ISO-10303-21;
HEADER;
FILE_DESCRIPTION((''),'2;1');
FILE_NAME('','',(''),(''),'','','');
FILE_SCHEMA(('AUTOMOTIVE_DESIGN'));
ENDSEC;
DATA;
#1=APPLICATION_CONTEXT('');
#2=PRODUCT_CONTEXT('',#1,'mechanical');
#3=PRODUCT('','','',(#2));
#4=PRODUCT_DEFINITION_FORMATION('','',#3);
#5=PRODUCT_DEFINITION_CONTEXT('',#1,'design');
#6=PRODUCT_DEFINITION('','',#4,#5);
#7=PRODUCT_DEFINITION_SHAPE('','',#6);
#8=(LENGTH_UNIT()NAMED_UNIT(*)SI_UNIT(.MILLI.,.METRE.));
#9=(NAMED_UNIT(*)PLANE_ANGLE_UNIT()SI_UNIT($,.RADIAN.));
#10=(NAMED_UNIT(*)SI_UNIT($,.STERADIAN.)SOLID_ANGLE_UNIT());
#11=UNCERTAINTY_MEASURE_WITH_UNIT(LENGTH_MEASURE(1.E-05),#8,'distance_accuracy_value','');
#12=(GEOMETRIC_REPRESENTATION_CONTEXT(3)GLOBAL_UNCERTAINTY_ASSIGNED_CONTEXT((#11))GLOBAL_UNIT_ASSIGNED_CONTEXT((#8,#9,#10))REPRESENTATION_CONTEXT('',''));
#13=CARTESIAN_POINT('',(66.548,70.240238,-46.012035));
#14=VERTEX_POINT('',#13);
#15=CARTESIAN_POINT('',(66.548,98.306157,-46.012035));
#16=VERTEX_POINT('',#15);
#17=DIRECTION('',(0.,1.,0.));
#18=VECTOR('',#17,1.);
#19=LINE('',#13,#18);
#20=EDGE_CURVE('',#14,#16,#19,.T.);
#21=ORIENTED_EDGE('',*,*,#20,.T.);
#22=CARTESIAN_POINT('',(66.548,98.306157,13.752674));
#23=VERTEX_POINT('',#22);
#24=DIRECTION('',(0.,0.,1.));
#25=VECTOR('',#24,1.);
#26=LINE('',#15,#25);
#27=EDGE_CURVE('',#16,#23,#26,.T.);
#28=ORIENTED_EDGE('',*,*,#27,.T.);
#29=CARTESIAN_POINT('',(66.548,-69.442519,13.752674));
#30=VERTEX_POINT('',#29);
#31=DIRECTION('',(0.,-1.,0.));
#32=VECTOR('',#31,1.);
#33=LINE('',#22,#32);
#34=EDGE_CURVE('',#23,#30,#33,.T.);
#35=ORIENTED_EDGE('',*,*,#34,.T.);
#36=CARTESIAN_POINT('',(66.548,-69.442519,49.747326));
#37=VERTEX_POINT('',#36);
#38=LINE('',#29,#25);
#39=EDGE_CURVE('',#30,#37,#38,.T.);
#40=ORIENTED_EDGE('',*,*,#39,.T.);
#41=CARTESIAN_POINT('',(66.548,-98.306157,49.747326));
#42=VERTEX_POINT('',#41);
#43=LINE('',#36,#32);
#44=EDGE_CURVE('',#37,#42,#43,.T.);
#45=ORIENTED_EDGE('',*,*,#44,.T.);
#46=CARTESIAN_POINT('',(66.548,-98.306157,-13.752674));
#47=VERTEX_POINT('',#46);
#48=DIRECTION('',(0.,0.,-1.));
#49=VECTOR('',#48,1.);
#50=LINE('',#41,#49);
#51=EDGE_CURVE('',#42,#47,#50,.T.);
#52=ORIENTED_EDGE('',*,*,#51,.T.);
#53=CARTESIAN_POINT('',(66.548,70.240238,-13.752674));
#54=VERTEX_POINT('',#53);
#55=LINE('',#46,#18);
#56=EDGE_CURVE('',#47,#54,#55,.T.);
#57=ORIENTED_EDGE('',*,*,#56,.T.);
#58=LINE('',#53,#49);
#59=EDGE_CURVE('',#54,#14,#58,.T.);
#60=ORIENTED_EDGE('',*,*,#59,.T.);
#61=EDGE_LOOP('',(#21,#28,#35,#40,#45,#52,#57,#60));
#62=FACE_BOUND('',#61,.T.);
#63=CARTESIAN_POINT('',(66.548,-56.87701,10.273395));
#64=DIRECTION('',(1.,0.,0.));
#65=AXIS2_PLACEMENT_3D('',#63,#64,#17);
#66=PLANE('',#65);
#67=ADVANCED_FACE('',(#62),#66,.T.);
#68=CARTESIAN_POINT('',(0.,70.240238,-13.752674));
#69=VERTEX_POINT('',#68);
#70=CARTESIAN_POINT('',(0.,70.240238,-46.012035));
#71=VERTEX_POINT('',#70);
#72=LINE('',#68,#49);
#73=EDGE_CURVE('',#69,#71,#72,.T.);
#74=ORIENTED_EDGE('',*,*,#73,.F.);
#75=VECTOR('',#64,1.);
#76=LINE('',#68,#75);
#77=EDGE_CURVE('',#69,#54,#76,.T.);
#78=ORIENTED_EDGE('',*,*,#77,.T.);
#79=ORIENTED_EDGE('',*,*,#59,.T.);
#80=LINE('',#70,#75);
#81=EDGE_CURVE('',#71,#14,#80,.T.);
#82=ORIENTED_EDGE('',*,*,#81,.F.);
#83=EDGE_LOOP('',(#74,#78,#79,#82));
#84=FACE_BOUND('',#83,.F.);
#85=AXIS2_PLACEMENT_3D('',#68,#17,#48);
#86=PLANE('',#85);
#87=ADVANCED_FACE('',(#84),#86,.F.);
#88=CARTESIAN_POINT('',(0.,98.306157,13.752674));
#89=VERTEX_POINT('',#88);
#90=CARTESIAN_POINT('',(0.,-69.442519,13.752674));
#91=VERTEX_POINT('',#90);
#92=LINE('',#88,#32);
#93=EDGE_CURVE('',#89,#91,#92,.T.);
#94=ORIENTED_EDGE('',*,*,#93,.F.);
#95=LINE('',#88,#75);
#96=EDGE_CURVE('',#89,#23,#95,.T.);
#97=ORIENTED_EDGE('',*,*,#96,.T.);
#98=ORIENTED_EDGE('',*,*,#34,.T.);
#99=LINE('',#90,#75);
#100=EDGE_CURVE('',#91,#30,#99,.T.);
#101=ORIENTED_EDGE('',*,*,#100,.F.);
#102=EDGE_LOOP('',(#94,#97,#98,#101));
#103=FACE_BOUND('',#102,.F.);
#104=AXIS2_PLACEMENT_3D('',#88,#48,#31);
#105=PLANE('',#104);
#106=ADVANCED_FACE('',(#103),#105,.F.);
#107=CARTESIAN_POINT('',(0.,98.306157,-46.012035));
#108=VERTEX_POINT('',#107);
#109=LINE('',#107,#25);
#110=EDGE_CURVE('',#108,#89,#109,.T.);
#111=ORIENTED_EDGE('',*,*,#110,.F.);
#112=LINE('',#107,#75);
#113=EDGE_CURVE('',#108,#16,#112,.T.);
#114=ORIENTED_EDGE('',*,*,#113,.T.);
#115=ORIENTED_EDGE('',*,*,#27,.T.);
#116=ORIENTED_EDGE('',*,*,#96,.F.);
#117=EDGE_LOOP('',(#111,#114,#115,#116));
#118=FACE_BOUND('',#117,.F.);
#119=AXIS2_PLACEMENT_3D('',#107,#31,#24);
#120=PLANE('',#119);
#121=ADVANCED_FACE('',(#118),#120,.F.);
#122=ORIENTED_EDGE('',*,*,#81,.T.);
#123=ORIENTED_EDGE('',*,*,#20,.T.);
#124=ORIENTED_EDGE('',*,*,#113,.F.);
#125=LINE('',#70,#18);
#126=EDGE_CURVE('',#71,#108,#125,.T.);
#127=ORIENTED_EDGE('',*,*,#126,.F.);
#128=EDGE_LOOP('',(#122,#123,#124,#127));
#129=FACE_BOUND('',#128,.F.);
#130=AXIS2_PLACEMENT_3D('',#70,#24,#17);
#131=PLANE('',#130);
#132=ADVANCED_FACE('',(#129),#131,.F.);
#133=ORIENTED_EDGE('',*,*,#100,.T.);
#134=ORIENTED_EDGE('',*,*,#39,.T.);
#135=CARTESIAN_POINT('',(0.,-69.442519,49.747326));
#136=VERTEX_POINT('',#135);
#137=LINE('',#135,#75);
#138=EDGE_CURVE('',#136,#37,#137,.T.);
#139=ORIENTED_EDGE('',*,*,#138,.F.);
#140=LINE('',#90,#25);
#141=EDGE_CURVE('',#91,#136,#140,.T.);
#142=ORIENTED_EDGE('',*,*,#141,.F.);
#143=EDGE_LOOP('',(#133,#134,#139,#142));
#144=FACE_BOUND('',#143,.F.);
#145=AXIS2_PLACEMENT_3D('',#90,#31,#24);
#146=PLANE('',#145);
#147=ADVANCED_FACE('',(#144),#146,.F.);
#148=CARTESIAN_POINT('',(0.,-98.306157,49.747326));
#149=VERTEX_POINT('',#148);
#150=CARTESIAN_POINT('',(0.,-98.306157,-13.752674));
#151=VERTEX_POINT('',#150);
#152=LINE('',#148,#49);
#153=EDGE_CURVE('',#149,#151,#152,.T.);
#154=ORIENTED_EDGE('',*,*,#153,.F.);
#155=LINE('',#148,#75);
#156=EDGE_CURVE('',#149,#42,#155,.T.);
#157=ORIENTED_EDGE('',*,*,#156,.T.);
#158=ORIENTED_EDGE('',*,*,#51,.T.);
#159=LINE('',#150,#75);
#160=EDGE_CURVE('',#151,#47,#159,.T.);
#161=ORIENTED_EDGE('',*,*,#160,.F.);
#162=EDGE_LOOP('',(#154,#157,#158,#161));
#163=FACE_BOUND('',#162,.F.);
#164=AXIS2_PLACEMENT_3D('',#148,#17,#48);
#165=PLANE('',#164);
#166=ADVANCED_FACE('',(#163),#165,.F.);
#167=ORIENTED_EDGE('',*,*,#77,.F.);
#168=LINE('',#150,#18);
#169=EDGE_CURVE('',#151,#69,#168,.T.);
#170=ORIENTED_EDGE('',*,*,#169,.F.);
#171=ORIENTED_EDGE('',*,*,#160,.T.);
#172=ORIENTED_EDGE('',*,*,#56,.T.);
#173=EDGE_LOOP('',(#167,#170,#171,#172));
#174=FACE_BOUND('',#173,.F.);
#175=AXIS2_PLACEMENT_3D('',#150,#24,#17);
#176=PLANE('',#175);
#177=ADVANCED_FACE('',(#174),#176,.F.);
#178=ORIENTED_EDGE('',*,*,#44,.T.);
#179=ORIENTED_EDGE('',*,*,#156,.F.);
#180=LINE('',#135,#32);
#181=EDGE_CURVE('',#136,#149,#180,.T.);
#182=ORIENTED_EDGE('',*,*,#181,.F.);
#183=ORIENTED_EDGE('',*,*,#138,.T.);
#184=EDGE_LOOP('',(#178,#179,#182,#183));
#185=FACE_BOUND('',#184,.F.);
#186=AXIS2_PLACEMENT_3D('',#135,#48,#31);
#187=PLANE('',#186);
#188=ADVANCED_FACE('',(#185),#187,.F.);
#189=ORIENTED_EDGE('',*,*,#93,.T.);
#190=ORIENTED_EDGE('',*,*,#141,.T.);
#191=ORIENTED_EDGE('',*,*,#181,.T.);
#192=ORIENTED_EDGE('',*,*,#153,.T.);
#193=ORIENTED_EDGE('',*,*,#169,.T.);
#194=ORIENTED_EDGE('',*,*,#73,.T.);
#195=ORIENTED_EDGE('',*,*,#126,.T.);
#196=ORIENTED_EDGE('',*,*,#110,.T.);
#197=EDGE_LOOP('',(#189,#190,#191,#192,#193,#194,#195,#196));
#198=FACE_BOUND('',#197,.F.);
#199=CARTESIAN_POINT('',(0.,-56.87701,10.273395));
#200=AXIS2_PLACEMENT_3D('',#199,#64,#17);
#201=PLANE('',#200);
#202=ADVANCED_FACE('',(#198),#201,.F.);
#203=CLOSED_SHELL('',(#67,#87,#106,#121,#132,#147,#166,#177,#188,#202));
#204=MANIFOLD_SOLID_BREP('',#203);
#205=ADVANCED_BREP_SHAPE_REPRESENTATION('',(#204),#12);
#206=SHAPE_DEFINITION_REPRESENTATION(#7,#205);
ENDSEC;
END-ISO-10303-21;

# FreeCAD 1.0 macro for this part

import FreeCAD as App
import Part
import Sketcher
from FreeCAD import Vector
Q = App.Units.Quantity

doc = App.newDocument("Part")
body = doc.addObject("PartDesign::Body", "Body")

# Sketch on YZ plane
sketch1 = body.newObject("Sketcher::SketchObject", "Sketch")
sketch1.AttachmentSupport = (doc.getObject("YZ_Plane"), [""])
sketch1.MapMode = "FlatFace"
sketch1.addGeometry([
    Part.LineSegment(Vector(-98, -14, 0), Vector(70, -14, 0)),  # 0
    Part.LineSegment(Vector(70, -14, 0), Vector(70, -46, 0)),  # 1
    Part.LineSegment(Vector(70, -46, 0), Vector(98, -46, 0)),  # 2
    Part.LineSegment(Vector(98, -46, 0), Vector(98, 14, 0)),  # 3
    Part.LineSegment(Vector(98, 14, 0), Vector(-69, 14, 0)),  # 4
    Part.LineSegment(Vector(-69, 14, 0), Vector(-69, 50, 0)),  # 5
    Part.LineSegment(Vector(-69, 50, 0), Vector(-98, 50, 0)),  # 6
    Part.LineSegment(Vector(-98, 50, 0), Vector(-98, -14, 0)),  # 7
], False)
sketch1.addConstraint([
    Sketcher.Constraint("Coincident", 0, 2, 1, 1),
    Sketcher.Constraint("Coincident", 1, 2, 2, 1),
    Sketcher.Constraint("Coincident", 2, 2, 3, 1),
    Sketcher.Constraint("Coincident", 3, 2, 4, 1),
    Sketcher.Constraint("Coincident", 4, 2, 5, 1),
    Sketcher.Constraint("Coincident", 5, 2, 6, 1),
    Sketcher.Constraint("Coincident", 6, 2, 7, 1),
    Sketcher.Constraint("Coincident", 7, 2, 0, 1),
    Sketcher.Constraint("Horizontal", 0),
    Sketcher.Constraint("Vertical", 1),
    Sketcher.Constraint("Horizontal", 2),
    Sketcher.Constraint("Vertical", 3),
    Sketcher.Constraint("Horizontal", 4),
    Sketcher.Constraint("Vertical", 5),
    Sketcher.Constraint("Horizontal", 6),
    Sketcher.Constraint("Vertical", 7),
    Sketcher.Constraint("Symmetric", 3, 2, 7, 2, -1, 1),
    Sketcher.Constraint("DistanceY", 7, 2, 7, 1, Q("2.5 in")),
    Sketcher.Constraint("DistanceX", 2, 1, 2, 2, 28.065919),
    Sketcher.Constraint("DistanceY", 1, 2, 1, 1, 32.259361),
    Sketcher.Constraint("DistanceY", 3, 1, 3, 2, 59.764709),
    Sketcher.Constraint("DistanceX", 0, 1, 0, 2, 168.546395),
    Sketcher.Constraint("DistanceX", 4, 2, 4, 1, 167.748676),
])
pad1 = body.newObject("PartDesign::Pad", "Pad")
pad1.Profile = sketch1
pad1.Length = Q("2.62 in")

doc.recompute()
